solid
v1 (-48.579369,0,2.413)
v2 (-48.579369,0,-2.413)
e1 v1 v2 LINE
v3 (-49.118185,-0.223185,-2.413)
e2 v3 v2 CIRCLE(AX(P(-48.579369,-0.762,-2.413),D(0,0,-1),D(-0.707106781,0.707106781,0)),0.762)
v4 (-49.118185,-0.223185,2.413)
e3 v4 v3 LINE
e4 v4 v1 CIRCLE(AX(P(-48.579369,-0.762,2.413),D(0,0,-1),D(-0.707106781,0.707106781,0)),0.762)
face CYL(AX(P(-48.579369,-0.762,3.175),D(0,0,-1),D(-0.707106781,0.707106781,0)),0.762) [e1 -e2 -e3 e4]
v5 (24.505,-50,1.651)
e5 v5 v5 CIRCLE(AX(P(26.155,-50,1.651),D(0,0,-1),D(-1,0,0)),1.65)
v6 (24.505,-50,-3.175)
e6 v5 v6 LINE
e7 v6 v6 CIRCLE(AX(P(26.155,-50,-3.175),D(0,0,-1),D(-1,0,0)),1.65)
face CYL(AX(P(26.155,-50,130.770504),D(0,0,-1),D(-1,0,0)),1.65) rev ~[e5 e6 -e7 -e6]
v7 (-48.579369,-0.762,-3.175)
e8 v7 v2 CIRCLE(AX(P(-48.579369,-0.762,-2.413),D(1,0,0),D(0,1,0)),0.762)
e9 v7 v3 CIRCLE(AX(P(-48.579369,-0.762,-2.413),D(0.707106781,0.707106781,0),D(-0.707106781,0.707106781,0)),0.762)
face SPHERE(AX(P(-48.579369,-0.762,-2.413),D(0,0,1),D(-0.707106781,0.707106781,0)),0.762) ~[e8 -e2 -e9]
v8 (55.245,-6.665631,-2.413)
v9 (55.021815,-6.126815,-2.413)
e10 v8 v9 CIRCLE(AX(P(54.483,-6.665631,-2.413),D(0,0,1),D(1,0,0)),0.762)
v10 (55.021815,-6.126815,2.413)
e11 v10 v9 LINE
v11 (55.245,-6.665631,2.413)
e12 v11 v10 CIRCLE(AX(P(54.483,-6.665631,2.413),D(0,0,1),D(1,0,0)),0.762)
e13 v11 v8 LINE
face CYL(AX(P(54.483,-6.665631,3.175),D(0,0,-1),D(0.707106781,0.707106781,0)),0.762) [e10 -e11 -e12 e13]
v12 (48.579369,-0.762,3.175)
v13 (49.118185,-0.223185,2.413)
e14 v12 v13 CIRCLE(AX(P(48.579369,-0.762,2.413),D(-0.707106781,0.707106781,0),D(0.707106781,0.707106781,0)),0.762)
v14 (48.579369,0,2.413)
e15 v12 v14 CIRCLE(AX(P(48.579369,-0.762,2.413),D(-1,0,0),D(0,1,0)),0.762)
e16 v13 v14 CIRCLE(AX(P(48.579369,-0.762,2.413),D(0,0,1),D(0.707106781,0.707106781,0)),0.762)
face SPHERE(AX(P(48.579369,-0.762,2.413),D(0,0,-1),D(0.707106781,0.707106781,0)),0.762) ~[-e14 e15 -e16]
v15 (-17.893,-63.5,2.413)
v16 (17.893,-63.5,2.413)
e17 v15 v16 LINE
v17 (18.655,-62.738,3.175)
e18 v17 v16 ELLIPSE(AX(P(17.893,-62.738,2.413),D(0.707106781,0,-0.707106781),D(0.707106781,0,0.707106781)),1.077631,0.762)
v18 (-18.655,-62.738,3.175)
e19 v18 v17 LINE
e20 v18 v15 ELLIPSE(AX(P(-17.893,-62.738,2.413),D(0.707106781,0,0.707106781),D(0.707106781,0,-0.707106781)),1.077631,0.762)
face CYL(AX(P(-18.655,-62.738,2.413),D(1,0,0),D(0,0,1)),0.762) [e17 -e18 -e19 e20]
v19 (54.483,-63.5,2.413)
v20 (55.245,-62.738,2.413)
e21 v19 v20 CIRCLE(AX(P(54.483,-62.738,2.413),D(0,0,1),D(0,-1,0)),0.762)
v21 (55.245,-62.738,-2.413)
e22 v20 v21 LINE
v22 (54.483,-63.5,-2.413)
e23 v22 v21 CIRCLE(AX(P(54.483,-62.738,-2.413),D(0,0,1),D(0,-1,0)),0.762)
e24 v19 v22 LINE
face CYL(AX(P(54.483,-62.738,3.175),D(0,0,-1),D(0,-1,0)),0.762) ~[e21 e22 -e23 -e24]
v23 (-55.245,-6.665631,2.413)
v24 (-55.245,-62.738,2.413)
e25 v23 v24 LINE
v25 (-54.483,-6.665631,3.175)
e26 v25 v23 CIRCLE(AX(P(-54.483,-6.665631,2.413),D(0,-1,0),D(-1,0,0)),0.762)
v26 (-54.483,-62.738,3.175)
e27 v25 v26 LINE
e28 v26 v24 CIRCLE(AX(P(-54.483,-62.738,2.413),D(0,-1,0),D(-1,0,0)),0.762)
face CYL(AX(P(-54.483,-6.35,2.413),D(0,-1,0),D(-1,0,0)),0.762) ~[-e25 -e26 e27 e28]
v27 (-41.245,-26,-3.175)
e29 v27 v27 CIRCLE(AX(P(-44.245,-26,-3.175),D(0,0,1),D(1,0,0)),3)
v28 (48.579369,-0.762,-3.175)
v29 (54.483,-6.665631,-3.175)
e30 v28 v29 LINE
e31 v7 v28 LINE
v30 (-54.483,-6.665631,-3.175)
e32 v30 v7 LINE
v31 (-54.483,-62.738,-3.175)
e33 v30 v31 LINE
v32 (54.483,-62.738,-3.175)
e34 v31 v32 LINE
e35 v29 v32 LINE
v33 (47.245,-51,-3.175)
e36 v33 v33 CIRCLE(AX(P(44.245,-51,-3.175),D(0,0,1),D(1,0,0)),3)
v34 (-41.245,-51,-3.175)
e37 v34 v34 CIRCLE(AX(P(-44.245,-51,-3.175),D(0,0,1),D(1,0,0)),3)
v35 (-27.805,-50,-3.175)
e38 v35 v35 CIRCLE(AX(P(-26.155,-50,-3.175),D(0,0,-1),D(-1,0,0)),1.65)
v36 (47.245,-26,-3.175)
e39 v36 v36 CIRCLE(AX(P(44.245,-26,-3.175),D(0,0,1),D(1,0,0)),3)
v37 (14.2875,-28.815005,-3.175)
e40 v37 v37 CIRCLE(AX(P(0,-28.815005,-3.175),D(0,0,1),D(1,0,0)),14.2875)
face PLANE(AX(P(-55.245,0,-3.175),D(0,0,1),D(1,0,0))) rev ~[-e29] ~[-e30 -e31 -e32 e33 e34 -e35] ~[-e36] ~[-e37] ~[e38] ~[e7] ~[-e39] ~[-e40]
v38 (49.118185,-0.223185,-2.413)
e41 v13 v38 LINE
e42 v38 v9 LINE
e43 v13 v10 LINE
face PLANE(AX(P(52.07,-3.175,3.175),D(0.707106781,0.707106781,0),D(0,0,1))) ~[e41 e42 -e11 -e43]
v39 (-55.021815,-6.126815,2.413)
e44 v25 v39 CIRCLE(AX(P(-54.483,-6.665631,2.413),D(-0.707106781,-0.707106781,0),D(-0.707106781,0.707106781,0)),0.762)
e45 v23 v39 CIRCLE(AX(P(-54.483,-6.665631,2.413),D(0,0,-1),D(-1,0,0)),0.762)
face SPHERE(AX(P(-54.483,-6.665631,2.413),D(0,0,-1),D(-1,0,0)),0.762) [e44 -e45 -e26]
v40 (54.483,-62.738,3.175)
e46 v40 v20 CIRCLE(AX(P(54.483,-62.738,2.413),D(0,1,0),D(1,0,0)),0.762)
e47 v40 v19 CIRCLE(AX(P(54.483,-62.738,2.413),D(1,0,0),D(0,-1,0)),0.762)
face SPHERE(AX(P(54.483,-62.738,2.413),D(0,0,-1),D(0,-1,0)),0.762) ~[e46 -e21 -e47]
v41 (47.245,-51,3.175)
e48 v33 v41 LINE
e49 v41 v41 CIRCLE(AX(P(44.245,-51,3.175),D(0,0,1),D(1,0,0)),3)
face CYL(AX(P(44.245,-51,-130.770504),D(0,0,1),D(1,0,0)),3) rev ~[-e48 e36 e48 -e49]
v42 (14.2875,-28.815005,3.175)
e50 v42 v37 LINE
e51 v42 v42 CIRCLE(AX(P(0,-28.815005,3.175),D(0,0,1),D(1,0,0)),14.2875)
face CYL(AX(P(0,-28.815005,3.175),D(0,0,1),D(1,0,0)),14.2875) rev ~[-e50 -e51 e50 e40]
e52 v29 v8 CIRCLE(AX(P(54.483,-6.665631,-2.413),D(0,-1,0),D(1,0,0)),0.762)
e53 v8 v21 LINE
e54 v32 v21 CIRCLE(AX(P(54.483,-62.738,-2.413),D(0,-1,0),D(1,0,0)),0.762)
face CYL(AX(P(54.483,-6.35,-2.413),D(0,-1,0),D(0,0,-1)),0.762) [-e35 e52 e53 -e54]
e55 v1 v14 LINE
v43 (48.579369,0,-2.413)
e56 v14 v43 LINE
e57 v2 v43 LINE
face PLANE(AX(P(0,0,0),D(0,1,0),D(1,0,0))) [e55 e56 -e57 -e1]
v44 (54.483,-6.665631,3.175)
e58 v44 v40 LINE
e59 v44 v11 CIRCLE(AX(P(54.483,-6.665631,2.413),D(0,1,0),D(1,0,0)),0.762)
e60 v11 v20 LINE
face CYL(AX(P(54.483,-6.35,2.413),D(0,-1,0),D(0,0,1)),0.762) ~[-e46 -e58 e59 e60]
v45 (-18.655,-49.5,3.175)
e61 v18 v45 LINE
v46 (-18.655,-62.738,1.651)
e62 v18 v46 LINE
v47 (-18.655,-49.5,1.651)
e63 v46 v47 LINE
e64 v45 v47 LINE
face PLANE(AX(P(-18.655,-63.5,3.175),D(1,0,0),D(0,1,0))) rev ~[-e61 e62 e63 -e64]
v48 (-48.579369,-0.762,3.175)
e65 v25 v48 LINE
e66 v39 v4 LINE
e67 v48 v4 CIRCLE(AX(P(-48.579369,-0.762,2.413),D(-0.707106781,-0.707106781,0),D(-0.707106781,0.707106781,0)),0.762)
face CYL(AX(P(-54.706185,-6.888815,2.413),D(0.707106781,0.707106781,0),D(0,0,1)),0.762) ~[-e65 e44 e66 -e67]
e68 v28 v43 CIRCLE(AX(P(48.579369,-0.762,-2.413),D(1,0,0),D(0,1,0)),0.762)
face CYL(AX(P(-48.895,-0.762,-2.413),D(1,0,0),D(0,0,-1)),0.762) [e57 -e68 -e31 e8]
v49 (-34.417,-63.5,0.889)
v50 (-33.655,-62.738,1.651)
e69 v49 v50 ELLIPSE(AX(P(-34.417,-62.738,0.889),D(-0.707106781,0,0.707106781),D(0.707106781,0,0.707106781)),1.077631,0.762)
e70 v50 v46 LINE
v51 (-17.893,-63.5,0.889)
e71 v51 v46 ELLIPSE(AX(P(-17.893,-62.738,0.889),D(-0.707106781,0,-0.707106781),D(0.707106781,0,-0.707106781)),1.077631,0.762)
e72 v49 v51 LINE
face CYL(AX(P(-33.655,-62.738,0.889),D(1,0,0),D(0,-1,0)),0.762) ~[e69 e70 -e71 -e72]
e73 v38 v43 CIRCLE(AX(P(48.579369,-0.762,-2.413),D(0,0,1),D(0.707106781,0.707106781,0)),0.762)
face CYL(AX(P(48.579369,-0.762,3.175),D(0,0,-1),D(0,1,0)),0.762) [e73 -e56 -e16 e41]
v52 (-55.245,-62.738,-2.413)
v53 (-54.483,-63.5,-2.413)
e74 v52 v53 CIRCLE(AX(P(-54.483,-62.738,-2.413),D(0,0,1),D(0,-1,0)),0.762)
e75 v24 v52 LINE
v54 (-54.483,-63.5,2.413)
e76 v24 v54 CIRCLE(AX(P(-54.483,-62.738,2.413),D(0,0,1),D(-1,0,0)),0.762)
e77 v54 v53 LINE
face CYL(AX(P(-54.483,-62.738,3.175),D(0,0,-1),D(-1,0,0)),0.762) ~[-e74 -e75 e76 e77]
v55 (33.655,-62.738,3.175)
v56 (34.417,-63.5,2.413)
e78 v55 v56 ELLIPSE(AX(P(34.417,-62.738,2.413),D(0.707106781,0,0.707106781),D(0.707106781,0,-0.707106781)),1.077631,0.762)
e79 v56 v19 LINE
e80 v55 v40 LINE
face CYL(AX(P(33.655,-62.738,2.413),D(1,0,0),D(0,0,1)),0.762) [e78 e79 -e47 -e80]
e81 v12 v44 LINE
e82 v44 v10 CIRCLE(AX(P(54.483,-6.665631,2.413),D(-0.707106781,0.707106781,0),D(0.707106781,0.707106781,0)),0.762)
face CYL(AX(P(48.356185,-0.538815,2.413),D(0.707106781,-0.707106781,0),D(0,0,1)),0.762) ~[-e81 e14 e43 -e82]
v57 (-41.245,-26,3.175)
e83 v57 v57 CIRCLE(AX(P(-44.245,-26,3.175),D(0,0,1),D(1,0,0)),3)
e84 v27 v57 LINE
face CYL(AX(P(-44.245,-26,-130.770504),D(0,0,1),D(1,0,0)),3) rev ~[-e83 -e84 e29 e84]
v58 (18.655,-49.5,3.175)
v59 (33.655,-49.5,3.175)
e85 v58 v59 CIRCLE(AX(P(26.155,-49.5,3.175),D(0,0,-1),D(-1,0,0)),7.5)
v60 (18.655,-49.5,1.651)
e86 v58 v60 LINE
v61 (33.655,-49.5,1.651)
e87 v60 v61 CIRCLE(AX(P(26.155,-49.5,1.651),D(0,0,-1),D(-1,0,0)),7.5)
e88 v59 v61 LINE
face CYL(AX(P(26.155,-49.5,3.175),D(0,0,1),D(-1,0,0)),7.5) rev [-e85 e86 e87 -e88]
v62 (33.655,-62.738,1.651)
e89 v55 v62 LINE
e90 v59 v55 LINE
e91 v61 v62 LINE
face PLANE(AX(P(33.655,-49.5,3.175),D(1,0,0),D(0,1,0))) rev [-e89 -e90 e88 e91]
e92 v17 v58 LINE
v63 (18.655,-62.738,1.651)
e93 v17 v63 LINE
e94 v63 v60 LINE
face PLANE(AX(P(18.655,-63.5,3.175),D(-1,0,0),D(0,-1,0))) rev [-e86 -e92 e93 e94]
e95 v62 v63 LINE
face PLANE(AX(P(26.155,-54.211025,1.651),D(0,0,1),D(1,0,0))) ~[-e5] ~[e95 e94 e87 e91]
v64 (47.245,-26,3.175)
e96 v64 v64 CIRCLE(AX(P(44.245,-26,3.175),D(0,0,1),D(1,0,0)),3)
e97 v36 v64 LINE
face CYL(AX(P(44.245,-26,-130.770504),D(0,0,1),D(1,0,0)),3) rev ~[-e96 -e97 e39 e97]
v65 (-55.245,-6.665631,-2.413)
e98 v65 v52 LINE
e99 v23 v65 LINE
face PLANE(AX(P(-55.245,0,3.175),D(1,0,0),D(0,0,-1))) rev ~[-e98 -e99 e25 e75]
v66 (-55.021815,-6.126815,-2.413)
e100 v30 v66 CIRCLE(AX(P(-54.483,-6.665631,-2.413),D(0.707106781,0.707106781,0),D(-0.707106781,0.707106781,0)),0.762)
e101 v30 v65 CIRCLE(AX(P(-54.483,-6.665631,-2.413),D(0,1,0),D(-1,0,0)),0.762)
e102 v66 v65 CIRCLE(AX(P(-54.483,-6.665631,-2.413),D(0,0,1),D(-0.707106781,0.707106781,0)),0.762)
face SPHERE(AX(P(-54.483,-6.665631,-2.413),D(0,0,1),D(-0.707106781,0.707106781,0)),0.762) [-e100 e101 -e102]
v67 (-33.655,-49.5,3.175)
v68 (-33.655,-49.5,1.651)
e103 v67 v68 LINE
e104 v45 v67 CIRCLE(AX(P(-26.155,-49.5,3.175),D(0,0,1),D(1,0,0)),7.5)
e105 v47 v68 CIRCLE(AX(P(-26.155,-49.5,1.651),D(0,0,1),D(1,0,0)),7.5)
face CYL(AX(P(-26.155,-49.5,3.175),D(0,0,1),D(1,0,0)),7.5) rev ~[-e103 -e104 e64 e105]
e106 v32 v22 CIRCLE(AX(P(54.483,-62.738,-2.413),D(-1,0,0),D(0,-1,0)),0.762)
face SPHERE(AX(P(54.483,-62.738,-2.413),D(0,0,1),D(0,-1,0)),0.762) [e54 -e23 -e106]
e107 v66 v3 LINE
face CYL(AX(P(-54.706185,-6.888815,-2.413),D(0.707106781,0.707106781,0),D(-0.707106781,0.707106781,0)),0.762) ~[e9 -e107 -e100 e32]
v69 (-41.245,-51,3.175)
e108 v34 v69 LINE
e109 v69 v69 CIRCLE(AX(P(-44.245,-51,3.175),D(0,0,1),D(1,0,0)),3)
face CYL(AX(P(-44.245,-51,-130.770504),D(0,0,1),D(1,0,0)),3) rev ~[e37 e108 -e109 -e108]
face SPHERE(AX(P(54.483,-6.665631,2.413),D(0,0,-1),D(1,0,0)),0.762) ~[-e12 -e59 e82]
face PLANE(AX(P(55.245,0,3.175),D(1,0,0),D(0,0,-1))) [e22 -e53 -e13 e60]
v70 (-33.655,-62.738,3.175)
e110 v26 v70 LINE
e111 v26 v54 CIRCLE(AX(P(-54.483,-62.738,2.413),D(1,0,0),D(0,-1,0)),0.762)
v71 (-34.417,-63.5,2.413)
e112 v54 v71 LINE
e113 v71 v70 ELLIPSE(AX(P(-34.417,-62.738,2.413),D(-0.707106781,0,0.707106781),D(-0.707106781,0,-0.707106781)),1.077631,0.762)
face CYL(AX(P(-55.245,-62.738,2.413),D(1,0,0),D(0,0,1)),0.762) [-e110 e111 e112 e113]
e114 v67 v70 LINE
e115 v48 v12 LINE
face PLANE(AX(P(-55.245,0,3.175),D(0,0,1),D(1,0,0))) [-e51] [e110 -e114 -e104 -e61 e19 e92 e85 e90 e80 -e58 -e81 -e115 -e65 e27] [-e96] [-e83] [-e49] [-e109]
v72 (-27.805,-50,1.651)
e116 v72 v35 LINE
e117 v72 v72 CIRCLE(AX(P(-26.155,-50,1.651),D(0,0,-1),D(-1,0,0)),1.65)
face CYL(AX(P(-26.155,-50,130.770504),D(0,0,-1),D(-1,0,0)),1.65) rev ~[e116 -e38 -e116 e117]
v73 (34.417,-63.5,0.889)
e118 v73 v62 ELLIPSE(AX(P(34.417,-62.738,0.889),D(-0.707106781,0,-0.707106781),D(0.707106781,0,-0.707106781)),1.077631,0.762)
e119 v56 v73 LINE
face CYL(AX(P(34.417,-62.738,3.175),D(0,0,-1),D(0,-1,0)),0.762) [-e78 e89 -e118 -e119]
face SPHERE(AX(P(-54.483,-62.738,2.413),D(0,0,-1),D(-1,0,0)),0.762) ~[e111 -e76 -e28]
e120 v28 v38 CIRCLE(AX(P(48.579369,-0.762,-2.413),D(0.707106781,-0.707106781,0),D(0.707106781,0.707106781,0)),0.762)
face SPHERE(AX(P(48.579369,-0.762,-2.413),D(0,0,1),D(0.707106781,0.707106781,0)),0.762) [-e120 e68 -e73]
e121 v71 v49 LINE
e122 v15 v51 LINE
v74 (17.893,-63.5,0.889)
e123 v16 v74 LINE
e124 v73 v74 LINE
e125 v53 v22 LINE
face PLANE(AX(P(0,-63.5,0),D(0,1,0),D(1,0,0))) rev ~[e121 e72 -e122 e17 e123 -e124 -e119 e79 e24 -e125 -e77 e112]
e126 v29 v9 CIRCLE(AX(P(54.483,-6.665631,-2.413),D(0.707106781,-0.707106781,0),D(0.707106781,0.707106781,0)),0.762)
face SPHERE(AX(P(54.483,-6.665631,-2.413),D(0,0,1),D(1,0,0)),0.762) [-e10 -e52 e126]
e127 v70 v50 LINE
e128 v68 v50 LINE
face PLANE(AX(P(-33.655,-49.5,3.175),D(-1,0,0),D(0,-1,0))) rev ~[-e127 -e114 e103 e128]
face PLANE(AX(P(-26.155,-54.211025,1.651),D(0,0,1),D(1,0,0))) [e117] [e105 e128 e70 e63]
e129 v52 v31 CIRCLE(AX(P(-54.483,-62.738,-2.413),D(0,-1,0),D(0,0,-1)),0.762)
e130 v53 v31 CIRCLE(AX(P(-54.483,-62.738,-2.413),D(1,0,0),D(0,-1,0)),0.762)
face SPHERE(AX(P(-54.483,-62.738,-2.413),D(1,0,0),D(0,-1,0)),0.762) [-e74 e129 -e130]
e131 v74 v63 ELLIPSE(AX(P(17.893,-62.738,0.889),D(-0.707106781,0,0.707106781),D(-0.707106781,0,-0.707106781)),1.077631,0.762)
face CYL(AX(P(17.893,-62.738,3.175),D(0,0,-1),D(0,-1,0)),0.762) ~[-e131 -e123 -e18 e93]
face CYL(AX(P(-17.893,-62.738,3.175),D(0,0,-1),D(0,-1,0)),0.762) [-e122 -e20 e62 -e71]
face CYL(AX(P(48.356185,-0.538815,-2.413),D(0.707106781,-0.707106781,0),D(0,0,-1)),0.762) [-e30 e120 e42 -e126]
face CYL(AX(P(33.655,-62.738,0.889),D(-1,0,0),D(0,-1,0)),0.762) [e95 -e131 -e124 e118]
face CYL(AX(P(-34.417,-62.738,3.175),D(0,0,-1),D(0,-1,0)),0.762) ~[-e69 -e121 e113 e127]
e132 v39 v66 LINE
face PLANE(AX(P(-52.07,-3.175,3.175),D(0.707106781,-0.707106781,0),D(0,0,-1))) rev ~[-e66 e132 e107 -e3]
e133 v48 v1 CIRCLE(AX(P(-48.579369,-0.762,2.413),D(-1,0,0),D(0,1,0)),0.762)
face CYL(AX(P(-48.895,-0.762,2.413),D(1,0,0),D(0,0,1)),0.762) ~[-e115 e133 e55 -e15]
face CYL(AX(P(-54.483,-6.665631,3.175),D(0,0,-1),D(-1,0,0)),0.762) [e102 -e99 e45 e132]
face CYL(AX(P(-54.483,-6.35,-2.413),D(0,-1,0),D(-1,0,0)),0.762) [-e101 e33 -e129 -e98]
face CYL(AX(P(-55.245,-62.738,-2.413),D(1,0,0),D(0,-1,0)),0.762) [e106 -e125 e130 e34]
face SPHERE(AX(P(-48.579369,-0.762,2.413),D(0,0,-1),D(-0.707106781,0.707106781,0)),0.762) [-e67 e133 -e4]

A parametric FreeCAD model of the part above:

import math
import FreeCAD as App
import Part
import Sketcher
Q = App.Units.Quantity


def edges_at(feature, points):
    """Names of the edges that pass closest to the given points."""
    edges = feature.Shape.Edges
    near = lambda p: min(range(len(edges)), key=lambda i: edges[i].distToShape(Part.Vertex(*p))[0])
    return sorted({f"Edge{near(p) + 1}" for p in points})


def add_polygon(sketch, points):
    """Adds a closed chain of lines whose ends are joined by coincident constraints."""
    first, n = sketch.GeometryCount, len(points)
    for a, b in zip(points, points[1:] + points[:1]):
        sketch.addGeometry(Part.LineSegment(App.Vector(*a, 0), App.Vector(*b, 0)), False)
    for i in range(n):
        sketch.addConstraint(Sketcher.Constraint("Coincident", first + i, 2, first + (i + 1) % n, 1))

doc = App.newDocument("Part")
params = doc.addObject("Spreadsheet::Sheet", "Params")
for row, (alias, value) in enumerate([
    ("sketch1_width", "4.35 in"),
    ("sketch1_height", "0.25 in"),
    ("pad1_length", "2.5 in"),
    ("sketch2_diameter", "1.125 in"),
    ("chamfer_size", "0.25 in"),
    ("pocket2_length", "0.06 in"),
    ("hole_diameter", "3.3 mm"),
    ("hole2_diameter", "6 mm"),
    ("fillet_radius", "0.03 in"),
], start=1):
    params.set(f"A{row}", alias)
    params.set(f"B{row}", "=" + value)
    params.setAlias(f"B{row}", alias)

body = doc.addObject("PartDesign::Body", "Body")

# Sketch on XZ plane
sketch1 = body.newObject("Sketcher::SketchObject", "Sketch")
sketch1.AttachmentSupport = (doc.getObject("XZ_Plane"), [""])
sketch1.MapMode = "FlatFace"
add_polygon(sketch1, [(-55, -3), (-55, 3), (55, 3), (55, -3)])  # lines 0-3
sketch1.addConstraint([
    Sketcher.Constraint("Vertical", 0),
    Sketcher.Constraint("Horizontal", 1),
    Sketcher.Constraint("Vertical", 2),
    Sketcher.Constraint("Horizontal", 3),
    Sketcher.Constraint("Symmetric", 0, 2, 2, 2, -1, 1),
    Sketcher.Constraint("DistanceX", 1, 1, 1, 2, Q("4.35 in")),
    Sketcher.Constraint("DistanceY", 0, 1, 0, 2, Q("0.25 in")),
])
sketch1.setExpression("Constraints[9]", "Params.sketch1_width")
sketch1.setExpression("Constraints[10]", "Params.sketch1_height")
pad1 = body.newObject("PartDesign::Pad", "Pad")
pad1.Profile = sketch1
pad1.setExpression("Length", "Params.pad1_length")

# Sketch on XY plane
sketch2 = body.newObject("Sketcher::SketchObject", "Sketch001")
sketch2.AttachmentSupport = (doc.getObject("XY_Plane"), [""])
sketch2.MapMode = "FlatFace"
sketch2.AttachmentOffset = App.Placement(App.Vector(0, 0, 0.125 * 25.4), App.Rotation())
sketch2.addGeometry(Part.Circle(App.Vector(0, -29, 0), App.Vector(0, 0, 1), 14), False)
sketch2.addConstraint([
    Sketcher.Constraint("PointOnObject", 0, 3, -2),
    Sketcher.Constraint("Diameter", 0, Q("1.125 in")),
    Sketcher.Constraint("DistanceY", 0, 3, -1, 1, Q("28.815005 mm")),
])
sketch2.setExpression("Constraints[1]", "Params.sketch2_diameter")
pocket1 = body.newObject("PartDesign::Pocket", "Pocket")
pocket1.Profile = sketch2
pocket1.Type = "ThroughAll"
doc.recompute()

chamfer = body.newObject("PartDesign::Chamfer", "Chamfer")
chamfer.Base = (pocket1, edges_at(pocket1, [(55.245, 0, 0), (-55.245, 0, 0)]))
chamfer.setExpression("Size", "Params.chamfer_size")

# Sketch on XY plane
sketch3 = body.newObject("Sketcher::SketchObject", "Sketch002")
sketch3.AttachmentSupport = (doc.getObject("XY_Plane"), [""])
sketch3.MapMode = "FlatFace"
sketch3.AttachmentOffset = App.Placement(App.Vector(0, 0, 0.125 * 25.4), App.Rotation())
sketch3.addGeometry([
    Part.LineSegment(App.Vector(-34, -50, 0), App.Vector(-34, -64, 0)),
    Part.LineSegment(App.Vector(-34, -64, 0), App.Vector(-19, -64, 0)),
    Part.LineSegment(App.Vector(-19, -64, 0), App.Vector(-19, -50, 0)),
    Part.ArcOfCircle(Part.Circle(App.Vector(-26, -50, 0), App.Vector(0, 0, 1), 8), math.radians(0), math.radians(180)),
], False)
sketch3.addConstraint([
    Sketcher.Constraint("Coincident", 0, 2, 1, 1),
    Sketcher.Constraint("Coincident", 1, 2, 2, 1),
    Sketcher.Constraint("Tangent", 2, 2, 3, 1),
    Sketcher.Constraint("Tangent", 3, 2, 0, 1),
    Sketcher.Constraint("Vertical", 0),
    Sketcher.Constraint("Horizontal", 1),
    Sketcher.Constraint("Vertical", 2),
    Sketcher.Constraint("DistanceY", 0, 2, -1, 1, Q("2.5 in")),
    Sketcher.Constraint("Radius", 3, Q("7.5 mm")),
    Sketcher.Constraint("DistanceX", 0, 2, -1, 1, Q("1.325 in")),
    Sketcher.Constraint("DistanceY", 0, 2, 0, 1, Q("14 mm")),
])
pocket2 = body.newObject("PartDesign::Pocket", "Pocket001")
pocket2.Profile = sketch3
pocket2.setExpression("Length", "Params.pocket2_length")
doc.recompute()

mirrored = body.newObject("PartDesign::Mirrored", "Mirrored")
mirrored.Originals = [pocket2]
mirrored.MirrorPlane = (doc.getObject("YZ_Plane"), [""])
body.Tip = mirrored

# Sketch on XY plane
sketch4 = body.newObject("Sketcher::SketchObject", "Sketch003")
sketch4.AttachmentSupport = (doc.getObject("XY_Plane"), [""])
sketch4.MapMode = "FlatFace"
sketch4.AttachmentOffset = App.Placement(App.Vector(0, 0, 0.125 * 25.4), App.Rotation())
sketch4.addGeometry([
    Part.Circle(App.Vector(-26.2, -50, 0), App.Vector(0, 0, 1), 1.6),
    Part.Circle(App.Vector(26.2, -50, 0), App.Vector(0, 0, 1), 1.6),
], False)
sketch4.addConstraint([
    Sketcher.Constraint("Equal", 0, 1),
    Sketcher.Constraint("Symmetric", 0, 3, 1, 3, -2),
    Sketcher.Constraint("Diameter", 0, Q("3.3 mm")),
    Sketcher.Constraint("DistanceX", 0, 3, -1, 1, Q("26.155 mm")),
    Sketcher.Constraint("DistanceY", 0, 3, -1, 1, Q("50 mm")),
])
doc.recompute()
hole = body.newObject("PartDesign::Hole", "Hole")
hole.Profile = sketch4
hole.ThreadType = "None"
hole.setExpression("Diameter", "Params.hole_diameter")
hole.DepthType = "ThroughAll"

# Sketch on XY plane
sketch5 = body.newObject("Sketcher::SketchObject", "Sketch004")
sketch5.AttachmentSupport = (doc.getObject("XY_Plane"), [""])
sketch5.MapMode = "FlatFace"
sketch5.AttachmentOffset = App.Placement(App.Vector(0, 0, -0.125 * 25.4), App.Rotation())
sketch5.addGeometry([
    Part.Circle(App.Vector(-44.2, -26, 0), App.Vector(0, 0, 1), 3),
    Part.Circle(App.Vector(-44.2, -51, 0), App.Vector(0, 0, 1), 3),
    Part.Circle(App.Vector(44.2, -51, 0), App.Vector(0, 0, 1), 3),
    Part.Circle(App.Vector(44.2, -26, 0), App.Vector(0, 0, 1), 3),
], False)
sketch5.addConstraint([
    Sketcher.Constraint("Equal", 0, 1),
    Sketcher.Constraint("Equal", 1, 2),
    Sketcher.Constraint("Equal", 2, 3),
    Sketcher.Constraint("Symmetric", 1, 3, 2, 3, -2),
    Sketcher.Constraint("Symmetric", 0, 3, 3, 3, -2),
    Sketcher.Constraint("Vertical", 0, 3, 1, 3),
    Sketcher.Constraint("Diameter", 0, Q("6 mm")),
    Sketcher.Constraint("DistanceX", 0, 3, -1, 1, Q("44.245 mm")),
    Sketcher.Constraint("DistanceY", 0, 3, -1, 1, Q("26 mm")),
    Sketcher.Constraint("DistanceY", 1, 3, -1, 1, Q("51 mm")),
])
doc.recompute()
hole2 = body.newObject("PartDesign::Hole", "Hole001")
hole2.Profile = sketch5
hole2.ThreadType = "None"
hole2.setExpression("Diameter", "Params.hole2_diameter")
hole2.DepthType = "ThroughAll"
hole2.Reversed = True
doc.recompute()

fillet = body.newObject("PartDesign::Fillet", "Fillet")
fillet.Base = (hole2, edges_at(hole2, [
    (55.245, -63.5, 0),
    (0, -63.5, -3.175),
    (0, 0, 3.175),
    (0, 0, -3.175),
    (48.895, 0, 0),
    (-48.895, 0, 0),
    (52.07, -3.175, 3.175),
    (-52.07, -3.175, 3.175),
    (-55.245, -6.35, 0),
    (52.07, -3.175, -3.175),
    (-52.07, -3.175, -3.175),
    (55.245, -6.35, 0),
    (0, -63.5, 3.175),
    (-26.155, -63.5, 1.651),
    (-18.655, -63.5, 2.413),
    (-33.655, -63.5, 2.413),
    (44.45, -63.5, 3.175),
    (-55.245, -63.5, 0),
    (33.655, -63.5, 2.413),
    (18.655, -63.5, 2.413),
    (26.155, -63.5, 1.651),
    (-55.245, -34.925, -3.175),
    (55.245, -34.925, -3.175),
    (55.245, -34.925, 3.175),
    (-55.245, -34.925, 3.175),
    (-44.45, -63.5, 3.175),
]))
fillet.setExpression("Radius", "Params.fillet_radius")

doc.recompute()
